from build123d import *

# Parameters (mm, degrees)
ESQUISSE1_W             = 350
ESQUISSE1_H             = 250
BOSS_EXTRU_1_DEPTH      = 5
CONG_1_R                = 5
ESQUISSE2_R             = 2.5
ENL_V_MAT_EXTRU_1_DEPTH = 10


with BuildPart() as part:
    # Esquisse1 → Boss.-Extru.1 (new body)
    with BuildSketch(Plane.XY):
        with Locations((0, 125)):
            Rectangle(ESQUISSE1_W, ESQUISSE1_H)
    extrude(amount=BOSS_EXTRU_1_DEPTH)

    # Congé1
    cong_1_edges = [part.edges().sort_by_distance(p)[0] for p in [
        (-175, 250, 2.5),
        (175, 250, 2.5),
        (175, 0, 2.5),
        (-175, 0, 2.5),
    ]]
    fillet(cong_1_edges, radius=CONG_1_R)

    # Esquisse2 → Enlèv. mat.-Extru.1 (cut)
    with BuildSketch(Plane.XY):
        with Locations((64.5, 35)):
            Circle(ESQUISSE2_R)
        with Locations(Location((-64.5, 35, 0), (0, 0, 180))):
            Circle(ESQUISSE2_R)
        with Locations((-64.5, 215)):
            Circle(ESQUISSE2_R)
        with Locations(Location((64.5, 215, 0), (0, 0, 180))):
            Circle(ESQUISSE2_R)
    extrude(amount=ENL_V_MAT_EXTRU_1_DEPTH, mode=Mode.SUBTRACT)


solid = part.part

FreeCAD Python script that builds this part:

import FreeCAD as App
import Part
import Sketcher

V = App.Vector


def edges_at(feature, points):
    """Names of the edges that pass closest to the given points."""
    edges = feature.Shape.Edges
    near = lambda p: min(range(len(edges)), key=lambda i: edges[i].distToShape(Part.Vertex(*p))[0])
    return sorted({f"Edge{near(p) + 1}" for p in points})

doc = App.newDocument("Part")
params = doc.addObject("Spreadsheet::Sheet", "Params")
for row, (alias, value) in enumerate([
    ("sketch1_width", "350 mm"),
    ("sketch1_height", "250 mm"),
    ("pad1_length", "5 mm"),
    ("fillet_radius", "5 mm"),
    ("sketch2_diameter", "5 mm"),
    ("pocket1_length", "10 mm"),
], start=1):
    params.set(f"A{row}", alias)
    params.set(f"B{row}", "=" + value)
    params.setAlias(f"B{row}", alias)

body = doc.addObject("PartDesign::Body", "Body")

# Sketch on XY plane
sketch1 = body.newObject("Sketcher::SketchObject", "Sketch")
sketch1.AttachmentSupport = (doc.getObject("XY_Plane"), [""])
sketch1.MapMode = "FlatFace"
sketch1.addGeometry([
    Part.LineSegment(V(-175, 250, 0), V(-175, 0, 0)),
    Part.LineSegment(V(-175, 0, 0), V(175, 0, 0)),
    Part.LineSegment(V(175, 0, 0), V(175, 250, 0)),
    Part.LineSegment(V(175, 250, 0), V(-175, 250, 0)),
], False)
sketch1.addConstraint([
    Sketcher.Constraint("Coincident", 0, 2, 1, 1),
    Sketcher.Constraint("Coincident", 1, 2, 2, 1),
    Sketcher.Constraint("Coincident", 2, 2, 3, 1),
    Sketcher.Constraint("Coincident", 3, 2, 0, 1),
    Sketcher.Constraint("Vertical", 0),
    Sketcher.Constraint("Horizontal", 1),
    Sketcher.Constraint("Vertical", 2),
    Sketcher.Constraint("Horizontal", 3),
    Sketcher.Constraint("Symmetric", 0, 2, 1, 2, -1, 1),
    Sketcher.Constraint("DistanceX", 1, 1, 1, 2, 350.0),
    Sketcher.Constraint("DistanceY", 0, 2, 0, 1, 250.0),
])
sketch1.setExpression("Constraints[9]", "Params.sketch1_width")
sketch1.setExpression("Constraints[10]", "Params.sketch1_height")
pad1 = body.newObject("PartDesign::Pad", "Pad")
pad1.Profile = sketch1
pad1.setExpression("Length", "Params.pad1_length")
doc.recompute()

fillet = body.newObject("PartDesign::Fillet", "Fillet")
fillet.Base = (pad1, edges_at(pad1, [
    (-175, 250, 2.5),
    (175, 250, 2.5),
    (175, 0, 2.5),
    (-175, 0, 2.5),
]))
fillet.setExpression("Radius", "Params.fillet_radius")

# Sketch on XY plane
sketch2 = body.newObject("Sketcher::SketchObject", "Sketch001")
sketch2.AttachmentSupport = (doc.getObject("XY_Plane"), [""])
sketch2.MapMode = "FlatFace"
sketch2.addGeometry([
    Part.Circle(V(64.5, 35, 0), V(0, 0, 1), 2.5),
    Part.Circle(V(-64.5, 35, 0), V(0, 0, 1), 2.5),
    Part.Circle(V(-64.5, 215, 0), V(0, 0, 1), 2.5),
    Part.Circle(V(64.5, 215, 0), V(0, 0, 1), 2.5),
], False)
sketch2.addConstraint([
    Sketcher.Constraint("Equal", 0, 1),
    Sketcher.Constraint("Equal", 1, 2),
    Sketcher.Constraint("Equal", 2, 3),
    Sketcher.Constraint("Symmetric", 0, 3, 1, 3, -2),
    Sketcher.Constraint("Symmetric", 2, 3, 3, 3, -2),
    Sketcher.Constraint("Vertical", 1, 3, 2, 3),
    Sketcher.Constraint("Diameter", 0, 5.0),
    Sketcher.Constraint("DistanceY", -1, 1, 0, 3, 35.0),
    Sketcher.Constraint("DistanceY", -1, 1, 2, 3, 215.0),
    Sketcher.Constraint("DistanceX", 1, 3, 0, 3, 129.0),
])
sketch2.setExpression("Constraints[6]", "Params.sketch2_diameter")
pocket1 = body.newObject("PartDesign::Pocket", "Pocket")
pocket1.Profile = sketch2
pocket1.setExpression("Length", "Params.pocket1_length")
pocket1.Reversed = True

doc.recompute()
